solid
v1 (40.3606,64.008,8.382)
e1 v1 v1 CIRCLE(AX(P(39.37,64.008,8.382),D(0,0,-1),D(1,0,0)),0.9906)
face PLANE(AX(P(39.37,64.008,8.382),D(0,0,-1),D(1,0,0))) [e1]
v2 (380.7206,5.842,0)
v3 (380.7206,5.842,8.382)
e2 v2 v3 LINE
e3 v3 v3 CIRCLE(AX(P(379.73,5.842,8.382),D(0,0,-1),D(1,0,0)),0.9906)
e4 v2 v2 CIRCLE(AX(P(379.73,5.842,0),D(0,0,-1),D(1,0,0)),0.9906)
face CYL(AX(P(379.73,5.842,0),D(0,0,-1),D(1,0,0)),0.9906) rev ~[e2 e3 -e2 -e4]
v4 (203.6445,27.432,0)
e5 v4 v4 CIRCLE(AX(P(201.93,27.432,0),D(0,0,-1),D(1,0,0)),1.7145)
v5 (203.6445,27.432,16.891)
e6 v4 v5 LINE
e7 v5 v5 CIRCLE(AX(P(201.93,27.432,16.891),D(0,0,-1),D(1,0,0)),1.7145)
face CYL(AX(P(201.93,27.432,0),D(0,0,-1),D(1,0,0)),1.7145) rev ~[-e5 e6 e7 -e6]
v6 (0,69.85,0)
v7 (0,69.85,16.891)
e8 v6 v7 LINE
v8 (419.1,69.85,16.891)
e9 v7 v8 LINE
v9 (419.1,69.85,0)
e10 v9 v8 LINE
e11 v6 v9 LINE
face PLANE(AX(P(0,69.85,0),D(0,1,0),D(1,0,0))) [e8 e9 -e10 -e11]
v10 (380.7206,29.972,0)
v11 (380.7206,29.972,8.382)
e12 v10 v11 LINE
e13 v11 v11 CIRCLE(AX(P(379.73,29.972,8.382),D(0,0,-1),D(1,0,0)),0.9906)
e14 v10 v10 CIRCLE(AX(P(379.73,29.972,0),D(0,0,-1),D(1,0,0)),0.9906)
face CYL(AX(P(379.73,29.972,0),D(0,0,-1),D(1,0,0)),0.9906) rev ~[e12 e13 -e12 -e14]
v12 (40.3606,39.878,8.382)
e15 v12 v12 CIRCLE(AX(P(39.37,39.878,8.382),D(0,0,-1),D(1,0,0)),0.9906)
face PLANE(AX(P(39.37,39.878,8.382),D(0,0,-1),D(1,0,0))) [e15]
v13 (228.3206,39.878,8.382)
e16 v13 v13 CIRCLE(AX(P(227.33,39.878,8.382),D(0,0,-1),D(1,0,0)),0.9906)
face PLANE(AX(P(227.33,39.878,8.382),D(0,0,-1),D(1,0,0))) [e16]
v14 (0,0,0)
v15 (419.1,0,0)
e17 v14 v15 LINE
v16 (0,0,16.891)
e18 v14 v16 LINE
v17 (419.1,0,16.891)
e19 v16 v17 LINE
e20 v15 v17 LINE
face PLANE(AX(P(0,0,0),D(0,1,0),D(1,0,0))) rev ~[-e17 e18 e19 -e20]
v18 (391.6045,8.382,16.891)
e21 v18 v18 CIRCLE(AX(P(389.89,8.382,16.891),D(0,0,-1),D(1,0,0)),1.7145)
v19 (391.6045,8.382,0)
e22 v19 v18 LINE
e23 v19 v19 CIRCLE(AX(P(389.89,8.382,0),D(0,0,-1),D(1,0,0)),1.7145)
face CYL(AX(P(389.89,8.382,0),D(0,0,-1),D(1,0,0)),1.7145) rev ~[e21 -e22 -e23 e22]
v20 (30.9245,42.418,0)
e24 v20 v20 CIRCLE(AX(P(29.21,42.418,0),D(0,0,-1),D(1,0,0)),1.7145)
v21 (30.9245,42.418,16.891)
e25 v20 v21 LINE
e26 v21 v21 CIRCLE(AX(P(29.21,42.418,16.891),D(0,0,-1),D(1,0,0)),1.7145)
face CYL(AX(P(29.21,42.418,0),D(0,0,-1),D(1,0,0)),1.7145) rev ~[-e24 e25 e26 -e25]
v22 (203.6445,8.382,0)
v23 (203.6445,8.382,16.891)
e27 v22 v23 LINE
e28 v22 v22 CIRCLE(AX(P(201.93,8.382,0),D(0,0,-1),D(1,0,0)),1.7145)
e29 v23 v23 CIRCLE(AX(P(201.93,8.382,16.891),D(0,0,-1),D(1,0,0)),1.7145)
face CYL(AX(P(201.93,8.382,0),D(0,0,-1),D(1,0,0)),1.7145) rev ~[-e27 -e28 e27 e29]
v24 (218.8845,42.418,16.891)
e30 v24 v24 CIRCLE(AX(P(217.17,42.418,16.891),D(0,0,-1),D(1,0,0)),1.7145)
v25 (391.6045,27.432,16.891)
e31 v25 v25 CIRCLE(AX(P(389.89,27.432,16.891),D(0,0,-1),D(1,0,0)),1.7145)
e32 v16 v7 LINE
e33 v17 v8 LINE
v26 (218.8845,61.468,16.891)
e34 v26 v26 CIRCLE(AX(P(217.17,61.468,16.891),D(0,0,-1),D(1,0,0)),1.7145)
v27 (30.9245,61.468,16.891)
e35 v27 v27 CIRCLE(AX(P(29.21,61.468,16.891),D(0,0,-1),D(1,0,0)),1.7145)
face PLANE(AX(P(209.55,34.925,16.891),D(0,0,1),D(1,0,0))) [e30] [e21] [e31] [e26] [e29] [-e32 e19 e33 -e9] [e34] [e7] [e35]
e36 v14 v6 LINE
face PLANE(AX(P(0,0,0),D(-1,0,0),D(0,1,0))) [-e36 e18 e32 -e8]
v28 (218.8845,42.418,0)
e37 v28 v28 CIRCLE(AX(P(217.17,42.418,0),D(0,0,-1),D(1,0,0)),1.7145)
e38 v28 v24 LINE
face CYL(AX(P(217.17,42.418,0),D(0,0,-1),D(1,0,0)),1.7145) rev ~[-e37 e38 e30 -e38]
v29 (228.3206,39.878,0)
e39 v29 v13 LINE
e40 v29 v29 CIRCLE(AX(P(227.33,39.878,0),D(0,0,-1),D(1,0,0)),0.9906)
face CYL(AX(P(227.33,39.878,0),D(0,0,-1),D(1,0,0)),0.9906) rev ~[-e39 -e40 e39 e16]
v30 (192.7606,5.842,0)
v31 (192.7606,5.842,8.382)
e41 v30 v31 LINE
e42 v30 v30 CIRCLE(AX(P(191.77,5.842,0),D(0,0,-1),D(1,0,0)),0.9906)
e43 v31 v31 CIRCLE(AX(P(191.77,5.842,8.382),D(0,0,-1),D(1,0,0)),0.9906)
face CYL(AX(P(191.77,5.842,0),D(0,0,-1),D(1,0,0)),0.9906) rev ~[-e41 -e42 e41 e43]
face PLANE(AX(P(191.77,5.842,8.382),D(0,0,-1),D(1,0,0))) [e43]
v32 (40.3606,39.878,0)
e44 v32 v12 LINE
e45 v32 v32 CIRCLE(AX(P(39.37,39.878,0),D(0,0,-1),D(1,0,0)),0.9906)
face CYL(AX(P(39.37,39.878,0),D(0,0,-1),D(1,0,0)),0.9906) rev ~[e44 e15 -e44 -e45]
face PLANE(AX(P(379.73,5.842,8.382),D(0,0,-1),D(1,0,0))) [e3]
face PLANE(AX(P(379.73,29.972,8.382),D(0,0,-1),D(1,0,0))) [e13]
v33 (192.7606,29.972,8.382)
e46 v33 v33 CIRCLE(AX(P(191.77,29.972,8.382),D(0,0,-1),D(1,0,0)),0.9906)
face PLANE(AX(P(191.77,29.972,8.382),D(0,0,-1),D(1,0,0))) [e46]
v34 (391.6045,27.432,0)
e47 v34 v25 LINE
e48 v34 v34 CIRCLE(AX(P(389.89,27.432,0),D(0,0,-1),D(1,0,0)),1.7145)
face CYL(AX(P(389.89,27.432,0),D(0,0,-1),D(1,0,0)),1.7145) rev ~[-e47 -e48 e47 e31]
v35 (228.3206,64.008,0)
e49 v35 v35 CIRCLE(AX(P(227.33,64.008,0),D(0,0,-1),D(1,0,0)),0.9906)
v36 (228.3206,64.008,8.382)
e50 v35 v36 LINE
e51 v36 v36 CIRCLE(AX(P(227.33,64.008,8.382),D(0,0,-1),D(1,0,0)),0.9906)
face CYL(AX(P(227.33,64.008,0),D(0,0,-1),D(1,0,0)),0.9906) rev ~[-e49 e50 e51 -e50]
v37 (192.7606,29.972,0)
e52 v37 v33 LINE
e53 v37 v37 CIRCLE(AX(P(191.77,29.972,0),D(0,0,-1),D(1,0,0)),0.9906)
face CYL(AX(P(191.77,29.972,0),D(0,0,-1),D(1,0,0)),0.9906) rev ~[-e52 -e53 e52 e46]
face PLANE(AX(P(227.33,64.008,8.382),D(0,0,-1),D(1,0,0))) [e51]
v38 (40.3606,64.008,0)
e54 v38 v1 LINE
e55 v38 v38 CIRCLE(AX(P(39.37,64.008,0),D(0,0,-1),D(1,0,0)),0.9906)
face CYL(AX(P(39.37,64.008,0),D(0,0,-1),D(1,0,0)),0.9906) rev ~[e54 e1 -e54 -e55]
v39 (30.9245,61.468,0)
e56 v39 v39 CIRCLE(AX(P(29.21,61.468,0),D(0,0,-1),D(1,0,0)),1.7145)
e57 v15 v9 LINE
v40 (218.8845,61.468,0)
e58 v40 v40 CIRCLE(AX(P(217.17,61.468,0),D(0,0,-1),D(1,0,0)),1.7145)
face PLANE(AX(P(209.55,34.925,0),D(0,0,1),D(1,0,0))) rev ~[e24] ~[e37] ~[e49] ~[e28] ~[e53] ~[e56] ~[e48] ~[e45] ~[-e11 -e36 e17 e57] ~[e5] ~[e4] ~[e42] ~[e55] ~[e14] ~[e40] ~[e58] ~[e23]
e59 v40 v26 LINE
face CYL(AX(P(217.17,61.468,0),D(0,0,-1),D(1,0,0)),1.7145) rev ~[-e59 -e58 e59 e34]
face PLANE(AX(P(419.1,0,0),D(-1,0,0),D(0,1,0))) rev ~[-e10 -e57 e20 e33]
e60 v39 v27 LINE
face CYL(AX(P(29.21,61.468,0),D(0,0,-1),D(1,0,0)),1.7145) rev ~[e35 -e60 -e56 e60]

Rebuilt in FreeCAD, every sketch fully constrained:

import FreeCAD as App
import Part
import Sketcher
Q = App.Units.Quantity

doc = App.newDocument("Part")
params = doc.addObject("Spreadsheet::Sheet", "Params")
for row, (alias, value) in enumerate([
    ("sketch1_width", "16.5 in"),
    ("sketch1_height", "2.75 in"),
    ("pad1_length", "0.665 in"),
    ("sketch2_diameter", "0.078 in"),
    ("pocket1_length", "0.33 in"),
    ("sketch3_diameter", "0.135 in"),
    ("pocket2_length", "1 in"),
], start=1):
    params.set(f"A{row}", alias)
    params.set(f"B{row}", "=" + value)
    params.setAlias(f"B{row}", alias)

body = doc.addObject("PartDesign::Body", "Body")

sketch1 = body.newObject("Sketcher::SketchObject", "Sketch")
sketch1.AttachmentSupport = (doc.getObject("XY_Plane"), [""])
sketch1.MapMode = "FlatFace"
sketch1.addGeometry(Part.LineSegment(App.Vector(0, 70, 0), App.Vector(0, 0, 0)), False)
sketch1.addGeometry(Part.LineSegment(App.Vector(0, 0, 0), App.Vector(419, 0, 0)), False)
sketch1.addGeometry(Part.LineSegment(App.Vector(419, 0, 0), App.Vector(419, 70, 0)), False)
sketch1.addGeometry(Part.LineSegment(App.Vector(419, 70, 0), App.Vector(0, 70, 0)), False)
sketch1.addConstraint(Sketcher.Constraint("Coincident", 0, 2, 1, 1))
sketch1.addConstraint(Sketcher.Constraint("Coincident", 1, 2, 2, 1))
sketch1.addConstraint(Sketcher.Constraint("Coincident", 2, 2, 3, 1))
sketch1.addConstraint(Sketcher.Constraint("Coincident", 3, 2, 0, 1))
sketch1.addConstraint(Sketcher.Constraint("Vertical", 0))
sketch1.addConstraint(Sketcher.Constraint("Horizontal", 1))
sketch1.addConstraint(Sketcher.Constraint("Vertical", 2))
sketch1.addConstraint(Sketcher.Constraint("Horizontal", 3))
sketch1.addConstraint(Sketcher.Constraint("Coincident", 0, 2, -1, 1))
sketch1.addConstraint(Sketcher.Constraint("DistanceX", 1, 1, 1, 2, Q("16.5 in")))
sketch1.addConstraint(Sketcher.Constraint("DistanceY", 0, 2, 0, 1, Q("2.75 in")))
sketch1.setExpression("Constraints[9]", "Params.sketch1_width")
sketch1.setExpression("Constraints[10]", "Params.sketch1_height")
pad1 = body.newObject("PartDesign::Pad", "Pad")
pad1.Profile = sketch1
pad1.setExpression("Length", "Params.pad1_length")

sketch2 = body.newObject("Sketcher::SketchObject", "Sketch001")
sketch2.AttachmentSupport = (doc.getObject("XY_Plane"), [""])
sketch2.MapMode = "FlatFace"
sketch2.addGeometry(Part.Circle(App.Vector(379.7, 5.8, 0), App.Vector(0, 0, 1), 1), False)
sketch2.addGeometry(Part.Circle(App.Vector(379.7, 30, 0), App.Vector(0, 0, 1), 1), False)
sketch2.addGeometry(Part.Circle(App.Vector(227.3, 39.9, 0), App.Vector(0, 0, 1), 1), False)
sketch2.addGeometry(Part.Circle(App.Vector(227.3, 64, 0), App.Vector(0, 0, 1), 1), False)
sketch2.addGeometry(Part.Circle(App.Vector(39.4, 64, 0), App.Vector(0, 0, 1), 1), False)
sketch2.addGeometry(Part.Circle(App.Vector(191.8, 30, 0), App.Vector(0, 0, 1), 1), False)
sketch2.addGeometry(Part.Circle(App.Vector(39.4, 39.9, 0), App.Vector(0, 0, 1), 1), False)
sketch2.addGeometry(Part.Circle(App.Vector(191.8, 5.8, 0), App.Vector(0, 0, 1), 1), False)
sketch2.addConstraint(Sketcher.Constraint("Equal", 0, 1))
sketch2.addConstraint(Sketcher.Constraint("Equal", 1, 2))
sketch2.addConstraint(Sketcher.Constraint("Equal", 2, 3))
sketch2.addConstraint(Sketcher.Constraint("Equal", 3, 4))
sketch2.addConstraint(Sketcher.Constraint("Equal", 4, 5))
sketch2.addConstraint(Sketcher.Constraint("Equal", 5, 6))
sketch2.addConstraint(Sketcher.Constraint("Equal", 6, 7))
sketch2.addConstraint(Sketcher.Constraint("Horizontal", 3, 3, 4, 3))
sketch2.addConstraint(Sketcher.Constraint("Horizontal", 1, 3, 5, 3))
sketch2.addConstraint(Sketcher.Constraint("Horizontal", 2, 3, 6, 3))
sketch2.addConstraint(Sketcher.Constraint("Horizontal", 0, 3, 7, 3))
sketch2.addConstraint(Sketcher.Constraint("Vertical", 0, 3, 1, 3))
sketch2.addConstraint(Sketcher.Constraint("Vertical", 2, 3, 3, 3))
sketch2.addConstraint(Sketcher.Constraint("Vertical", 4, 3, 6, 3))
sketch2.addConstraint(Sketcher.Constraint("Vertical", 5, 3, 7, 3))
sketch2.addConstraint(Sketcher.Constraint("Diameter", 0, Q("0.078 in")))
sketch2.addConstraint(Sketcher.Constraint("DistanceX", 2, 3, 1, 3, Q("6 in")))
sketch2.addConstraint(Sketcher.Constraint("DistanceX", 4, 3, 5, 3, Q("6 in")))
sketch2.addConstraint(Sketcher.Constraint("DistanceX", 4, 3, 3, 3, Q("7.4 in")))
sketch2.addConstraint(Sketcher.Constraint("DistanceX", -1, 1, 0, 3, Q("14.95 in")))
sketch2.addConstraint(Sketcher.Constraint("DistanceY", -1, 1, 0, 3, Q("0.23 in")))
sketch2.addConstraint(Sketcher.Constraint("DistanceY", -1, 1, 1, 3, Q("1.18 in")))
sketch2.addConstraint(Sketcher.Constraint("DistanceY", -1, 1, 2, 3, Q("1.57 in")))
sketch2.addConstraint(Sketcher.Constraint("DistanceY", -1, 1, 3, 3, Q("2.52 in")))
sketch2.setExpression("Constraints[15]", "Params.sketch2_diameter")
pocket1 = body.newObject("PartDesign::Pocket", "Pocket")
pocket1.Profile = sketch2
pocket1.setExpression("Length", "Params.pocket1_length")
pocket1.Reversed = True

sketch3 = body.newObject("Sketcher::SketchObject", "Sketch002")
sketch3.AttachmentSupport = (doc.getObject("XY_Plane"), [""])
sketch3.MapMode = "FlatFace"
sketch3.addGeometry(Part.Circle(App.Vector(389.9, 8.4, 0), App.Vector(0, 0, 1), 1.7), False)
sketch3.addGeometry(Part.Circle(App.Vector(389.9, 27.4, 0), App.Vector(0, 0, 1), 1.7), False)
sketch3.addGeometry(Part.Circle(App.Vector(217.2, 42.4, 0), App.Vector(0, 0, 1), 1.7), False)
sketch3.addGeometry(Part.Circle(App.Vector(217.2, 61.5, 0), App.Vector(0, 0, 1), 1.7), False)
sketch3.addGeometry(Part.Circle(App.Vector(29.2, 42.4, 0), App.Vector(0, 0, 1), 1.7), False)
sketch3.addGeometry(Part.Circle(App.Vector(29.2, 61.5, 0), App.Vector(0, 0, 1), 1.7), False)
sketch3.addGeometry(Part.Circle(App.Vector(201.9, 27.4, 0), App.Vector(0, 0, 1), 1.7), False)
sketch3.addGeometry(Part.Circle(App.Vector(201.9, 8.4, 0), App.Vector(0, 0, 1), 1.7), False)
sketch3.addGeometry(Part.Circle(App.Vector(-174, 42.4, 0), App.Vector(0, 0, 1), 1.7), False)
sketch3.addGeometry(Part.Circle(App.Vector(-174, 61.5, 0), App.Vector(0, 0, 1), 1.7), False)
sketch3.addGeometry(Part.Circle(App.Vector(-377.2, 42.4, 0), App.Vector(0, 0, 1), 1.7), False)
sketch3.addGeometry(Part.Circle(App.Vector(-377.2, 61.5, 0), App.Vector(0, 0, 1), 1.7), False)
sketch3.addConstraint(Sketcher.Constraint("Equal", 0, 1))
sketch3.addConstraint(Sketcher.Constraint("Equal", 1, 2))
sketch3.addConstraint(Sketcher.Constraint("Equal", 2, 3))
sketch3.addConstraint(Sketcher.Constraint("Equal", 3, 4))
sketch3.addConstraint(Sketcher.Constraint("Equal", 4, 5))
sketch3.addConstraint(Sketcher.Constraint("Equal", 5, 6))
sketch3.addConstraint(Sketcher.Constraint("Equal", 6, 7))
sketch3.addConstraint(Sketcher.Constraint("Equal", 7, 8))
sketch3.addConstraint(Sketcher.Constraint("Equal", 8, 9))
sketch3.addConstraint(Sketcher.Constraint("Equal", 9, 10))
sketch3.addConstraint(Sketcher.Constraint("Equal", 10, 11))
sketch3.addConstraint(Sketcher.Constraint("Horizontal", 2, 3, 4, 3))
sketch3.addConstraint(Sketcher.Constraint("Horizontal", 3, 3, 5, 3))
sketch3.addConstraint(Sketcher.Constraint("Horizontal", 1, 3, 6, 3))
sketch3.addConstraint(Sketcher.Constraint("Horizontal", 0, 3, 7, 3))
sketch3.addConstraint(Sketcher.Constraint("Horizontal", 4, 3, 8, 3))
sketch3.addConstraint(Sketcher.Constraint("Horizontal", 5, 3, 9, 3))
sketch3.addConstraint(Sketcher.Constraint("Horizontal", 8, 3, 10, 3))
sketch3.addConstraint(Sketcher.Constraint("Horizontal", 9, 3, 11, 3))
sketch3.addConstraint(Sketcher.Constraint("Vertical", 0, 3, 1, 3))
sketch3.addConstraint(Sketcher.Constraint("Vertical", 2, 3, 3, 3))
sketch3.addConstraint(Sketcher.Constraint("Vertical", 4, 3, 5, 3))
sketch3.addConstraint(Sketcher.Constraint("Vertical", 6, 3, 7, 3))
sketch3.addConstraint(Sketcher.Constraint("Vertical", 8, 3, 9, 3))
sketch3.addConstraint(Sketcher.Constraint("Vertical", 10, 3, 11, 3))
sketch3.addConstraint(Sketcher.Constraint("Diameter", 0, Q("0.135 in")))
sketch3.addConstraint(Sketcher.Constraint("DistanceX", 8, 3, 4, 3, Q("8 in")))
sketch3.addConstraint(Sketcher.Constraint("DistanceX", 10, 3, 8, 3, Q("8 in")))
sketch3.addConstraint(Sketcher.Constraint("DistanceX", 2, 3, 1, 3, Q("6.8 in")))
sketch3.addConstraint(Sketcher.Constraint("DistanceX", 4, 3, 2, 3, Q("7.4 in")))
sketch3.addConstraint(Sketcher.Constraint("DistanceX", 6, 3, 2, 3, Q("0.6 in")))
sketch3.addConstraint(Sketcher.Constraint("DistanceX", -1, 1, 0, 3, Q("15.35 in")))
sketch3.addConstraint(Sketcher.Constraint("DistanceY", -1, 1, 0, 3, Q("0.33 in")))
sketch3.addConstraint(Sketcher.Constraint("DistanceY", -1, 1, 1, 3, Q("1.08 in")))
sketch3.addConstraint(Sketcher.Constraint("DistanceY", -1, 1, 2, 3, Q("1.67 in")))
sketch3.addConstraint(Sketcher.Constraint("DistanceY", -1, 1, 3, 3, Q("2.42 in")))
sketch3.setExpression("Constraints[25]", "Params.sketch3_diameter")
pocket2 = body.newObject("PartDesign::Pocket", "Pocket001")
pocket2.Profile = sketch3
pocket2.setExpression("Length", "Params.pocket2_length")
pocket2.Reversed = True

doc.recompute()
